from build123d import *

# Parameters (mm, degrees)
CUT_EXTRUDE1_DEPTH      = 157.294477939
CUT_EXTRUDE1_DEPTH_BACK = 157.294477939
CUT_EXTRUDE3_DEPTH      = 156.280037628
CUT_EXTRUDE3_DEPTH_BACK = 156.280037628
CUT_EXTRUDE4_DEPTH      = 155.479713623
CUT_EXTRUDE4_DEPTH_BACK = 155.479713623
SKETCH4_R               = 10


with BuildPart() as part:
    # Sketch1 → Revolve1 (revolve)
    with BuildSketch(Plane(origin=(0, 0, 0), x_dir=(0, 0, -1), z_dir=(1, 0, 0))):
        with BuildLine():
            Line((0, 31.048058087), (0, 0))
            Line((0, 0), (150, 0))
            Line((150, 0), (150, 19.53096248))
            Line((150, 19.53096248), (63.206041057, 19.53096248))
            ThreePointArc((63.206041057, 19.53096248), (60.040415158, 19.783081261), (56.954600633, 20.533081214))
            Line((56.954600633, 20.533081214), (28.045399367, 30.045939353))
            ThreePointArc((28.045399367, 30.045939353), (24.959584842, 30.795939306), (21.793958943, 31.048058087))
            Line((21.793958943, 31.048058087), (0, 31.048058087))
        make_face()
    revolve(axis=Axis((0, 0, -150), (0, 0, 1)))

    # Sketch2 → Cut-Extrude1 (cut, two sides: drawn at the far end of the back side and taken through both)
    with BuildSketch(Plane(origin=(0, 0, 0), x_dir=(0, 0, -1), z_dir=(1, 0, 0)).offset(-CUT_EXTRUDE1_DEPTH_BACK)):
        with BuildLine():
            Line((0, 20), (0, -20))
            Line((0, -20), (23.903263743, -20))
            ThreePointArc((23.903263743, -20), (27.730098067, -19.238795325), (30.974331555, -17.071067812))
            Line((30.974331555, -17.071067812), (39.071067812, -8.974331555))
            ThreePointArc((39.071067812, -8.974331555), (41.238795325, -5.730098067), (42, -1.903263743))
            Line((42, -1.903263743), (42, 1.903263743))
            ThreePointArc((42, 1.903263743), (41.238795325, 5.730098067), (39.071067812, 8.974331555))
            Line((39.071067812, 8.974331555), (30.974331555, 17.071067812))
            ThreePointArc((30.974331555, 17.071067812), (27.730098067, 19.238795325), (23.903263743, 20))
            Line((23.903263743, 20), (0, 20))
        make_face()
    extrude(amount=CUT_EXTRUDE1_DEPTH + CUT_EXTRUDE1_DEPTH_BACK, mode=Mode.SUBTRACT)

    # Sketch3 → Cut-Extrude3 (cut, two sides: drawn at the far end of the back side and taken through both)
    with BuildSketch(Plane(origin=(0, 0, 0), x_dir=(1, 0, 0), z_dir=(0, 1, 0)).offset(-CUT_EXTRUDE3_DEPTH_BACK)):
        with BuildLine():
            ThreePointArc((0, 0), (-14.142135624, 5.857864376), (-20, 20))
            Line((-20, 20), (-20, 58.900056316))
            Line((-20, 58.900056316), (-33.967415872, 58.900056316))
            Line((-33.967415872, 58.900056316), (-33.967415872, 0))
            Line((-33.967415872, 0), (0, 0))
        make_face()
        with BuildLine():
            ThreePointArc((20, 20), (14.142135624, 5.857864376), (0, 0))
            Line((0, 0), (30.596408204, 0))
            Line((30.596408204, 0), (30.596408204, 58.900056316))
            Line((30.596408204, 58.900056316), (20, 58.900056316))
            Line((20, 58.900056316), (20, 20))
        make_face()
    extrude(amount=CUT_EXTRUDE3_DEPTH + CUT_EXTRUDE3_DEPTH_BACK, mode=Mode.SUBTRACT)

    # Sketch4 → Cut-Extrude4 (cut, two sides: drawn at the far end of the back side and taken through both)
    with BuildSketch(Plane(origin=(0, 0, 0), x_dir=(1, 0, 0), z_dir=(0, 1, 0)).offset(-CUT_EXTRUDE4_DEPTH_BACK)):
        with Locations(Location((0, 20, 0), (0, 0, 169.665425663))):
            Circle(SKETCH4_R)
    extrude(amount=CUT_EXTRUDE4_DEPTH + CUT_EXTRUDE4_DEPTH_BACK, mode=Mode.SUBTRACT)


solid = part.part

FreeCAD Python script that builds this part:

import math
import FreeCAD as App
import Part
import Sketcher
from FreeCAD import Vector

doc = App.newDocument("Part")
body = doc.addObject("PartDesign::Body", "Body")

sketch1 = body.newObject("Sketcher::SketchObject", "Sketch")
sketch1.AttachmentSupport = (doc.getObject("YZ_Plane"), [""])
sketch1.MapMode = "FlatFace"
sketch1.addGeometry([
    Part.LineSegment(Vector(31, 0, 0), Vector(0, 0, 0)),
    Part.LineSegment(Vector(0, 0, 0), Vector(0, -150, 0)),
    Part.LineSegment(Vector(0, -150, 0), Vector(20, -150, 0)),
    Part.LineSegment(Vector(20, -150, 0), Vector(20, -63, 0)),
    Part.ArcOfCircle(Part.Circle(Vector(40, -63, 0), Vector(0, 0, 1), 20), math.radians(161.79), math.radians(180)),
    Part.LineSegment(Vector(21, -57, 0), Vector(30, -28, 0)),
    Part.ArcOfCircle(Part.Circle(Vector(11, -22, 0), Vector(0, 0, 1), 20), math.radians(-18.21), math.radians(0)),
    Part.LineSegment(Vector(31, -22, 0), Vector(31, 0, 0)),
], False)
sketch1.addConstraint([
    Sketcher.Constraint("Coincident", 0, 2, 1, 1),
    Sketcher.Constraint("Coincident", 1, 2, 2, 1),
    Sketcher.Constraint("Coincident", 2, 2, 3, 1),
    Sketcher.Constraint("Tangent", 3, 2, 4, 2),
    Sketcher.Constraint("Tangent", 4, 1, 5, 1),
    Sketcher.Constraint("Tangent", 5, 2, 6, 1),
    Sketcher.Constraint("Tangent", 6, 2, 7, 1),
    Sketcher.Constraint("Coincident", 7, 2, 0, 1),
    Sketcher.Constraint("Horizontal", 0),
    Sketcher.Constraint("Vertical", 1),
    Sketcher.Constraint("Horizontal", 2),
    Sketcher.Constraint("Vertical", 3),
    Sketcher.Constraint("Vertical", 7),
    Sketcher.Constraint("Coincident", 0, 2, -1, 1),
    Sketcher.Constraint("Equal", 4, 6),
    Sketcher.Constraint("Radius", 4, 20.0),
    Sketcher.Constraint("DistanceY", 1, 2, 1, 1, 150.0),
    Sketcher.Constraint("DistanceX", 0, 2, 0, 1, 31.048058),
    Sketcher.Constraint("DistanceY", 3, 1, 3, 2, 86.793959),
    Sketcher.Constraint("DistanceY", 7, 1, 7, 2, 21.793959),
    Sketcher.Constraint("DistanceY", 4, 1, -1, 1, 56.954601),
])
revolution = body.newObject("PartDesign::Revolution", "Revolution")
revolution.Profile = sketch1
revolution.ReferenceAxis = (sketch1, ["V_Axis"])
revolution.Angle = 360

sketch2 = body.newObject("Sketcher::SketchObject", "Sketch001")
sketch2.AttachmentSupport = (doc.getObject("YZ_Plane"), [""])
sketch2.MapMode = "FlatFace"
sketch2.addGeometry([
    Part.LineSegment(Vector(20, 0, 0), Vector(-20, 0, 0)),
    Part.LineSegment(Vector(-20, 0, 0), Vector(-20, -23.9, 0)),
    Part.ArcOfCircle(Part.Circle(Vector(-10, -23.9, 0), Vector(0, 0, 1), 10), math.radians(180), math.radians(225)),
    Part.LineSegment(Vector(-17.1, -31, 0), Vector(-9, -39.1, 0)),
    Part.ArcOfCircle(Part.Circle(Vector(-1.9, -32, 0), Vector(0, 0, 1), 10), math.radians(-135), math.radians(-90)),
    Part.LineSegment(Vector(-1.9, -42, 0), Vector(1.9, -42, 0)),
    Part.ArcOfCircle(Part.Circle(Vector(1.9, -32, 0), Vector(0, 0, 1), 10), math.radians(-90), math.radians(-45)),
    Part.LineSegment(Vector(9, -39.1, 0), Vector(17.1, -31, 0)),
    Part.ArcOfCircle(Part.Circle(Vector(10, -23.9, 0), Vector(0, 0, 1), 10), math.radians(-45), math.radians(0)),
    Part.LineSegment(Vector(20, -23.9, 0), Vector(20, 0, 0)),
], False)
sketch2.addConstraint([
    Sketcher.Constraint("Coincident", 0, 2, 1, 1),
    Sketcher.Constraint("Tangent", 1, 2, 2, 1),
    Sketcher.Constraint("Tangent", 2, 2, 3, 1),
    Sketcher.Constraint("Tangent", 3, 2, 4, 1),
    Sketcher.Constraint("Tangent", 4, 2, 5, 1),
    Sketcher.Constraint("Tangent", 5, 2, 6, 1),
    Sketcher.Constraint("Tangent", 6, 2, 7, 1),
    Sketcher.Constraint("Tangent", 7, 2, 8, 1),
    Sketcher.Constraint("Tangent", 8, 2, 9, 1),
    Sketcher.Constraint("Coincident", 9, 2, 0, 1),
    Sketcher.Constraint("Horizontal", 0),
    Sketcher.Constraint("Vertical", 1),
    Sketcher.Constraint("Horizontal", 5),
    Sketcher.Constraint("Vertical", 9),
    Sketcher.Constraint("Equal", 2, 4),
    Sketcher.Constraint("Equal", 4, 6),
    Sketcher.Constraint("Equal", 6, 8),
    Sketcher.Constraint("Symmetric", 0, 2, 9, 2, -1, 1),
    Sketcher.Constraint("Symmetric", 3, 2, 6, 2, -2),
    Sketcher.Constraint("Perpendicular", 3, 7),
    Sketcher.Constraint("Radius", 2, 10.0),
    Sketcher.Constraint("DistanceX", 0, 2, 0, 1, 40.0),
    Sketcher.Constraint("DistanceY", 4, 3, -1, 1, 32.0),
    Sketcher.Constraint("DistanceX", 5, 1, 5, 2, 3.806527),
])
pocket1 = body.newObject("PartDesign::Pocket", "Pocket")
pocket1.Profile = sketch2
pocket1.Type = "ThroughAll"
pocket1.Midplane = True

sketch3 = body.newObject("Sketcher::SketchObject", "Sketch002")
sketch3.AttachmentSupport = (doc.getObject("XZ_Plane"), [""])
sketch3.MapMode = "FlatFace"
sketch3.addGeometry([
    Part.ArcOfCircle(Part.Circle(Vector(0, -20, 0), Vector(0, 0, 1), 20), math.radians(90), math.radians(180)),
    Part.LineSegment(Vector(-20, -20, 0), Vector(-20, -59, 0)),
    Part.LineSegment(Vector(-20, -59, 0), Vector(-34, -59, 0)),
    Part.LineSegment(Vector(-34, -59, 0), Vector(-34, 0, 0)),
    Part.LineSegment(Vector(-34, 0, 0), Vector(0, 0, 0)),
    Part.ArcOfCircle(Part.Circle(Vector(0, -20, 0), Vector(0, 0, 1), 20), math.radians(0), math.radians(90)),
    Part.LineSegment(Vector(0, 0, 0), Vector(31, 0, 0)),
    Part.LineSegment(Vector(31, 0, 0), Vector(31, -59, 0)),
    Part.LineSegment(Vector(31, -59, 0), Vector(20, -59, 0)),
    Part.LineSegment(Vector(20, -59, 0), Vector(20, -20, 0)),
], False)
sketch3.addConstraint([
    Sketcher.Constraint("Tangent", 0, 2, 1, 1),
    Sketcher.Constraint("Coincident", 1, 2, 2, 1),
    Sketcher.Constraint("Coincident", 2, 2, 3, 1),
    Sketcher.Constraint("Coincident", 3, 2, 4, 1),
    Sketcher.Constraint("Tangent", 4, 2, 0, 1),
    Sketcher.Constraint("Tangent", 5, 2, 6, 1),
    Sketcher.Constraint("Coincident", 6, 2, 7, 1),
    Sketcher.Constraint("Coincident", 7, 2, 8, 1),
    Sketcher.Constraint("Coincident", 8, 2, 9, 1),
    Sketcher.Constraint("Tangent", 9, 2, 5, 1),
    Sketcher.Constraint("Vertical", 1),
    Sketcher.Constraint("Horizontal", 2),
    Sketcher.Constraint("Vertical", 3),
    Sketcher.Constraint("Horizontal", 4),
    Sketcher.Constraint("Horizontal", 6),
    Sketcher.Constraint("Vertical", 7),
    Sketcher.Constraint("Horizontal", 8),
    Sketcher.Constraint("Vertical", 9),
    Sketcher.Constraint("Coincident", 4, 2, -1, 1),
    Sketcher.Constraint("Coincident", 5, 2, -1, 1),
    Sketcher.Constraint("Equal", 0, 5),
    Sketcher.Constraint("Horizontal", 2, 2, 7, 2),
    Sketcher.Constraint("Radius", 0, 20.0),
    Sketcher.Constraint("DistanceX", 6, 1, 6, 2, 30.596408),
    Sketcher.Constraint("DistanceX", 2, 2, 2, 1, 13.967416),
    Sketcher.Constraint("DistanceY", 1, 2, 1, 1, 38.900056),
])
pocket2 = body.newObject("PartDesign::Pocket", "Pocket001")
pocket2.Profile = sketch3
pocket2.Type = "ThroughAll"
pocket2.Midplane = True

sketch4 = body.newObject("Sketcher::SketchObject", "Sketch003")
sketch4.AttachmentSupport = (doc.getObject("XZ_Plane"), [""])
sketch4.MapMode = "FlatFace"
sketch4.addGeometry(Part.Circle(Vector(0, -20, 0), Vector(0, 0, 1), 10), False)
sketch4.addConstraint([
    Sketcher.Constraint("PointOnObject", 0, 3, -2),
    Sketcher.Constraint("Diameter", 0, 20.0),
    Sketcher.Constraint("DistanceY", 0, 3, -1, 1, 20.0),
])
pocket3 = body.newObject("PartDesign::Pocket", "Pocket002")
pocket3.Profile = sketch4
pocket3.Type = "ThroughAll"
pocket3.Midplane = True

doc.recompute()
